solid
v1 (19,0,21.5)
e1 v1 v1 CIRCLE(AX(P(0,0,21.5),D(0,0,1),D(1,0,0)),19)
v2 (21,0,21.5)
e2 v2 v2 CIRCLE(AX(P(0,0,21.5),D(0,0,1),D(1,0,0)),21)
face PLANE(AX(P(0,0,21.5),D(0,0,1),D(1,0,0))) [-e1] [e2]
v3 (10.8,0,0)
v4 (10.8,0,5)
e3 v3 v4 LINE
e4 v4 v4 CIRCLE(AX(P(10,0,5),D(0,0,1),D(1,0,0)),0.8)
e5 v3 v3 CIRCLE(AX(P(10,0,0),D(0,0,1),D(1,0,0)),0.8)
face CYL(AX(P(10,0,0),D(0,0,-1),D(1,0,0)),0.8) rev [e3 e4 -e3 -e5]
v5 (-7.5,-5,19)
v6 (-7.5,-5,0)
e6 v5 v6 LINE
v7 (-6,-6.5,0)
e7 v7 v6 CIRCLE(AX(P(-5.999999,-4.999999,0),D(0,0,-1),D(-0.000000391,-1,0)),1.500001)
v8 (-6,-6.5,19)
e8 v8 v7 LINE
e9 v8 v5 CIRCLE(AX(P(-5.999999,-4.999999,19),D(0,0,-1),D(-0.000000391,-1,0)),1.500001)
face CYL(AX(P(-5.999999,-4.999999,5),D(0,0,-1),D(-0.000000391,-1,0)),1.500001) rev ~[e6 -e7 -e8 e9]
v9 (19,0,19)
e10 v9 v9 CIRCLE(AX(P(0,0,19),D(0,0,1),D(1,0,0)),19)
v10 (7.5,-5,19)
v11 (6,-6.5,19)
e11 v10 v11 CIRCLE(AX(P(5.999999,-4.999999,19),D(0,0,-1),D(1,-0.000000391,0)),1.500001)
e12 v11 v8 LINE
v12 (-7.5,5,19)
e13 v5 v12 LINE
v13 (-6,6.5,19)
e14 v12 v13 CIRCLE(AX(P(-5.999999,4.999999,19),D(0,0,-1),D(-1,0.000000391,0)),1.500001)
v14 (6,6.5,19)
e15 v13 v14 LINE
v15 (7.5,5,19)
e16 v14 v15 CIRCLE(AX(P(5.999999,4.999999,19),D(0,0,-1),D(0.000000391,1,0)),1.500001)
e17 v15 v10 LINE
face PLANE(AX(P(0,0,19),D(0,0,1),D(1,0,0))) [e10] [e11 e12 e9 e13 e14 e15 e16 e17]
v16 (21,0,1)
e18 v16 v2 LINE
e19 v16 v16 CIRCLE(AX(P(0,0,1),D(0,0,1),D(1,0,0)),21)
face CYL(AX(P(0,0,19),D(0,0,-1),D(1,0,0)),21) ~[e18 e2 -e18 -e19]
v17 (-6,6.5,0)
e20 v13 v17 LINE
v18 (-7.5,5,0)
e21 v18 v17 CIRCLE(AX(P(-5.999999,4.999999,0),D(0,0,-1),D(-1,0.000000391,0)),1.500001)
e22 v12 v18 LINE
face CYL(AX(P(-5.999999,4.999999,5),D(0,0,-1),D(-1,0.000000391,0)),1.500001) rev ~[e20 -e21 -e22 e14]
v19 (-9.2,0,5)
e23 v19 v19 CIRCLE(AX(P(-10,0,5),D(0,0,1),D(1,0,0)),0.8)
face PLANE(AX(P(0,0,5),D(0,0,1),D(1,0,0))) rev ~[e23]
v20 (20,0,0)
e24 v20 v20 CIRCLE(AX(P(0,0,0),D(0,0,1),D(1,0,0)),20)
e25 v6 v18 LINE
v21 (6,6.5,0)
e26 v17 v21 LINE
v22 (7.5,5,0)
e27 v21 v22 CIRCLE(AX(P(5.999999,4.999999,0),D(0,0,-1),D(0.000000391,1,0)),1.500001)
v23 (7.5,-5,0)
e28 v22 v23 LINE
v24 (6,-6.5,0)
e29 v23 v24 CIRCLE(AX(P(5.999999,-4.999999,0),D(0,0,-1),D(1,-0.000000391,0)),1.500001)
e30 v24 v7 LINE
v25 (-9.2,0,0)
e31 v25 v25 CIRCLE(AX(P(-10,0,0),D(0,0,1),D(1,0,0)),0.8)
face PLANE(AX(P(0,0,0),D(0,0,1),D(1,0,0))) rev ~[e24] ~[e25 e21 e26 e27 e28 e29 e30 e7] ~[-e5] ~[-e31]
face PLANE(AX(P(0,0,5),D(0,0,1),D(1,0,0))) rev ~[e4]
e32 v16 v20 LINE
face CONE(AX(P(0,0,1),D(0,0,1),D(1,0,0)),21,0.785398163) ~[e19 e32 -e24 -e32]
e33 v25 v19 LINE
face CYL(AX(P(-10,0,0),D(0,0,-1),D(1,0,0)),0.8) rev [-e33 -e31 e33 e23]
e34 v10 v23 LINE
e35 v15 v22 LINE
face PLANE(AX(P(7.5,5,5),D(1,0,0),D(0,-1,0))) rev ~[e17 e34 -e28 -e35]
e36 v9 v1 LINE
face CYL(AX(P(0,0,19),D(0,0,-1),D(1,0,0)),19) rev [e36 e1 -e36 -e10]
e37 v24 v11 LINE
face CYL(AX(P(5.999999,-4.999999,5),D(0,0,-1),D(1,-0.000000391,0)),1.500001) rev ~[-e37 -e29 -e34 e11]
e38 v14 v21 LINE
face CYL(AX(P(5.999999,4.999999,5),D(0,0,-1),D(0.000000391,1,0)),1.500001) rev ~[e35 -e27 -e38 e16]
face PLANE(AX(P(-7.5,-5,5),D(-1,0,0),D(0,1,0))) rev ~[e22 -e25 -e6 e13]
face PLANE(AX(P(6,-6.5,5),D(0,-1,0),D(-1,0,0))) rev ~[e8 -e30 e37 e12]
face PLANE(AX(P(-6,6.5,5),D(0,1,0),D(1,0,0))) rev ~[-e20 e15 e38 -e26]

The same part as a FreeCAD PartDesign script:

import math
import FreeCAD as App
import Part
import Sketcher

V = App.Vector


def edges_at(feature, points):
    """Names of the edges that pass closest to the given points."""
    edges = feature.Shape.Edges
    near = lambda p: min(range(len(edges)), key=lambda i: edges[i].distToShape(Part.Vertex(*p))[0])
    return sorted({f"Edge{near(p) + 1}" for p in points})

doc = App.newDocument("Part")
params = doc.addObject("Spreadsheet::Sheet", "Params")
for row, (alias, value) in enumerate([
    ("sketch1_diameter", "42 mm"),
    ("sketch1_diameter2", "1.6 mm"),
    ("sketch1_radius", "1.500001 mm"),
    ("sketch1_width", "12 mm"),
    ("sketch1_height", "10 mm"),
    ("pad1_length", "5 mm"),
    ("sketch2_diameter", "42 mm"),
    ("sketch2_radius", "1.500001 mm"),
    ("sketch2_width", "12 mm"),
    ("sketch2_height", "10 mm"),
    ("pad2_length", "14 mm"),
    ("sketch3_diameter", "42 mm"),
    ("sketch3_diameter2", "38 mm"),
    ("pad3_length", "2.5 mm"),
    ("chamfer_size", "1 mm"),
], start=1):
    params.set(f"A{row}", alias)
    params.set(f"B{row}", "=" + value)
    params.setAlias(f"B{row}", alias)

body = doc.addObject("PartDesign::Body", "Body")

# Sketch on XY plane
sketch1 = body.newObject("Sketcher::SketchObject", "Sketch")
sketch1.AttachmentSupport = (doc.getObject("XY_Plane"), [""])
sketch1.MapMode = "FlatFace"
sketch1.addGeometry([
    Part.Circle(V(0, 0, 0), V(0, 0, 1), 21),  # 0
    Part.Circle(V(-10, 0, 0), V(0, 0, 1), 0.8),  # 1
    Part.ArcOfCircle(Part.Circle(V(6, -5, 0), V(0, 0, 1), 1.5), math.radians(-90), math.radians(0)),  # 2
    Part.LineSegment(V(6, -6.5, 0), V(-6, -6.5, 0)),  # 3
    Part.ArcOfCircle(Part.Circle(V(-6, -5, 0), V(0, 0, 1), 1.5), math.radians(-180), math.radians(-90)),  # 4
    Part.LineSegment(V(-7.5, -5, 0), V(-7.5, 5, 0)),  # 5
    Part.ArcOfCircle(Part.Circle(V(-6, 5, 0), V(0, 0, 1), 1.5), math.radians(90), math.radians(180)),  # 6
    Part.LineSegment(V(-6, 6.5, 0), V(6, 6.5, 0)),  # 7
    Part.ArcOfCircle(Part.Circle(V(6, 5, 0), V(0, 0, 1), 1.5), math.radians(0), math.radians(90)),  # 8
    Part.LineSegment(V(7.5, 5, 0), V(7.5, -5, 0)),  # 9
    Part.Circle(V(10, 0, 0), V(0, 0, 1), 0.8),  # 10
], False)
sketch1.addConstraint([
    Sketcher.Constraint("Tangent", 2, 1, 3, 1),
    Sketcher.Constraint("Tangent", 3, 2, 4, 2),
    Sketcher.Constraint("Tangent", 4, 1, 5, 1),
    Sketcher.Constraint("Tangent", 5, 2, 6, 2),
    Sketcher.Constraint("Tangent", 6, 1, 7, 1),
    Sketcher.Constraint("Tangent", 7, 2, 8, 2),
    Sketcher.Constraint("Tangent", 8, 1, 9, 1),
    Sketcher.Constraint("Tangent", 9, 2, 2, 2),
    Sketcher.Constraint("Horizontal", 3),
    Sketcher.Constraint("Vertical", 5),
    Sketcher.Constraint("Horizontal", 7),
    Sketcher.Constraint("Vertical", 9),
    Sketcher.Constraint("Coincident", 0, 3, -1, 1),
    Sketcher.Constraint("Equal", 2, 4),
    Sketcher.Constraint("Equal", 4, 6),
    Sketcher.Constraint("Equal", 6, 8),
    Sketcher.Constraint("Equal", 1, 10),
    Sketcher.Constraint("Symmetric", 2, 3, 6, 3, -1, 1),
    Sketcher.Constraint("Symmetric", 1, 3, 10, 3, -1, 1),
    Sketcher.Constraint("PointOnObject", 1, 3, -1),
    Sketcher.Constraint("Diameter", 0, 42.0),
    Sketcher.Constraint("Diameter", 1, 1.6),
    Sketcher.Constraint("Radius", 2, 1.500001),
    Sketcher.Constraint("DistanceX", 3, 2, 3, 1, 12.0),
    Sketcher.Constraint("DistanceY", 5, 1, 5, 2, 10.0),
    Sketcher.Constraint("DistanceX", 1, 3, -1, 1, 10.0),
])
sketch1.setExpression("Constraints[20]", "Params.sketch1_diameter")
sketch1.setExpression("Constraints[21]", "Params.sketch1_diameter2")
sketch1.setExpression("Constraints[22]", "Params.sketch1_radius")
sketch1.setExpression("Constraints[23]", "Params.sketch1_width")
sketch1.setExpression("Constraints[24]", "Params.sketch1_height")
pad1 = body.newObject("PartDesign::Pad", "Pad")
pad1.Profile = sketch1
pad1.setExpression("Length", "Params.pad1_length")

# Sketch on XY plane
sketch2 = body.newObject("Sketcher::SketchObject", "Sketch001")
sketch2.AttachmentSupport = (doc.getObject("XY_Plane"), [""])
sketch2.MapMode = "FlatFace"
sketch2.AttachmentOffset = App.Placement(V(0, 0, 5), App.Rotation())
sketch2.addGeometry([
    Part.Circle(V(0, 0, 0), V(0, 0, 1), 21),  # 0
    Part.ArcOfCircle(Part.Circle(V(6, -5, 0), V(0, 0, 1), 1.5), math.radians(-90), math.radians(0)),  # 1
    Part.LineSegment(V(6, -6.5, 0), V(-6, -6.5, 0)),  # 2
    Part.ArcOfCircle(Part.Circle(V(-6, -5, 0), V(0, 0, 1), 1.5), math.radians(-180), math.radians(-90)),  # 3
    Part.LineSegment(V(-7.5, -5, 0), V(-7.5, 5, 0)),  # 4
    Part.ArcOfCircle(Part.Circle(V(-6, 5, 0), V(0, 0, 1), 1.5), math.radians(90), math.radians(180)),  # 5
    Part.LineSegment(V(-6, 6.5, 0), V(6, 6.5, 0)),  # 6
    Part.ArcOfCircle(Part.Circle(V(6, 5, 0), V(0, 0, 1), 1.5), math.radians(0), math.radians(90)),  # 7
    Part.LineSegment(V(7.5, 5, 0), V(7.5, -5, 0)),  # 8
], False)
sketch2.addConstraint([
    Sketcher.Constraint("Tangent", 1, 1, 2, 1),
    Sketcher.Constraint("Tangent", 2, 2, 3, 2),
    Sketcher.Constraint("Tangent", 3, 1, 4, 1),
    Sketcher.Constraint("Tangent", 4, 2, 5, 2),
    Sketcher.Constraint("Tangent", 5, 1, 6, 1),
    Sketcher.Constraint("Tangent", 6, 2, 7, 2),
    Sketcher.Constraint("Tangent", 7, 1, 8, 1),
    Sketcher.Constraint("Tangent", 8, 2, 1, 2),
    Sketcher.Constraint("Horizontal", 2),
    Sketcher.Constraint("Vertical", 4),
    Sketcher.Constraint("Horizontal", 6),
    Sketcher.Constraint("Vertical", 8),
    Sketcher.Constraint("Coincident", 0, 3, -1, 1),
    Sketcher.Constraint("Equal", 1, 3),
    Sketcher.Constraint("Equal", 3, 5),
    Sketcher.Constraint("Equal", 5, 7),
    Sketcher.Constraint("Symmetric", 1, 3, 5, 3, -1, 1),
    Sketcher.Constraint("Diameter", 0, 42.0),
    Sketcher.Constraint("Radius", 1, 1.500001),
    Sketcher.Constraint("DistanceX", 2, 2, 2, 1, 12.0),
    Sketcher.Constraint("DistanceY", 4, 1, 4, 2, 10.0),
])
sketch2.setExpression("Constraints[17]", "Params.sketch2_diameter")
sketch2.setExpression("Constraints[18]", "Params.sketch2_radius")
sketch2.setExpression("Constraints[19]", "Params.sketch2_width")
sketch2.setExpression("Constraints[20]", "Params.sketch2_height")
pad2 = body.newObject("PartDesign::Pad", "Pad001")
pad2.Profile = sketch2
pad2.setExpression("Length", "Params.pad2_length")

# Sketch on XY plane
sketch3 = body.newObject("Sketcher::SketchObject", "Sketch002")
sketch3.AttachmentSupport = (doc.getObject("XY_Plane"), [""])
sketch3.MapMode = "FlatFace"
sketch3.AttachmentOffset = App.Placement(V(0, 0, 19), App.Rotation())
sketch3.addGeometry([
    Part.Circle(V(0, 0, 0), V(0, 0, 1), 21),
    Part.Circle(V(0, 0, 0), V(0, 0, 1), 19),
], False)
sketch3.addConstraint([
    Sketcher.Constraint("Coincident", 0, 3, -1, 1),
    Sketcher.Constraint("Coincident", 1, 3, -1, 1),
    Sketcher.Constraint("Diameter", 0, 42.0),
    Sketcher.Constraint("Diameter", 1, 38.0),
])
sketch3.setExpression("Constraints[2]", "Params.sketch3_diameter")
sketch3.setExpression("Constraints[3]", "Params.sketch3_diameter2")
pad3 = body.newObject("PartDesign::Pad", "Pad002")
pad3.Profile = sketch3
pad3.setExpression("Length", "Params.pad3_length")
doc.recompute()

chamfer = body.newObject("PartDesign::Chamfer", "Chamfer")
chamfer.Base = (pad3, edges_at(pad3, [(-21, 0, 0)]))
chamfer.setExpression("Size", "Params.chamfer_size")

doc.recompute()
